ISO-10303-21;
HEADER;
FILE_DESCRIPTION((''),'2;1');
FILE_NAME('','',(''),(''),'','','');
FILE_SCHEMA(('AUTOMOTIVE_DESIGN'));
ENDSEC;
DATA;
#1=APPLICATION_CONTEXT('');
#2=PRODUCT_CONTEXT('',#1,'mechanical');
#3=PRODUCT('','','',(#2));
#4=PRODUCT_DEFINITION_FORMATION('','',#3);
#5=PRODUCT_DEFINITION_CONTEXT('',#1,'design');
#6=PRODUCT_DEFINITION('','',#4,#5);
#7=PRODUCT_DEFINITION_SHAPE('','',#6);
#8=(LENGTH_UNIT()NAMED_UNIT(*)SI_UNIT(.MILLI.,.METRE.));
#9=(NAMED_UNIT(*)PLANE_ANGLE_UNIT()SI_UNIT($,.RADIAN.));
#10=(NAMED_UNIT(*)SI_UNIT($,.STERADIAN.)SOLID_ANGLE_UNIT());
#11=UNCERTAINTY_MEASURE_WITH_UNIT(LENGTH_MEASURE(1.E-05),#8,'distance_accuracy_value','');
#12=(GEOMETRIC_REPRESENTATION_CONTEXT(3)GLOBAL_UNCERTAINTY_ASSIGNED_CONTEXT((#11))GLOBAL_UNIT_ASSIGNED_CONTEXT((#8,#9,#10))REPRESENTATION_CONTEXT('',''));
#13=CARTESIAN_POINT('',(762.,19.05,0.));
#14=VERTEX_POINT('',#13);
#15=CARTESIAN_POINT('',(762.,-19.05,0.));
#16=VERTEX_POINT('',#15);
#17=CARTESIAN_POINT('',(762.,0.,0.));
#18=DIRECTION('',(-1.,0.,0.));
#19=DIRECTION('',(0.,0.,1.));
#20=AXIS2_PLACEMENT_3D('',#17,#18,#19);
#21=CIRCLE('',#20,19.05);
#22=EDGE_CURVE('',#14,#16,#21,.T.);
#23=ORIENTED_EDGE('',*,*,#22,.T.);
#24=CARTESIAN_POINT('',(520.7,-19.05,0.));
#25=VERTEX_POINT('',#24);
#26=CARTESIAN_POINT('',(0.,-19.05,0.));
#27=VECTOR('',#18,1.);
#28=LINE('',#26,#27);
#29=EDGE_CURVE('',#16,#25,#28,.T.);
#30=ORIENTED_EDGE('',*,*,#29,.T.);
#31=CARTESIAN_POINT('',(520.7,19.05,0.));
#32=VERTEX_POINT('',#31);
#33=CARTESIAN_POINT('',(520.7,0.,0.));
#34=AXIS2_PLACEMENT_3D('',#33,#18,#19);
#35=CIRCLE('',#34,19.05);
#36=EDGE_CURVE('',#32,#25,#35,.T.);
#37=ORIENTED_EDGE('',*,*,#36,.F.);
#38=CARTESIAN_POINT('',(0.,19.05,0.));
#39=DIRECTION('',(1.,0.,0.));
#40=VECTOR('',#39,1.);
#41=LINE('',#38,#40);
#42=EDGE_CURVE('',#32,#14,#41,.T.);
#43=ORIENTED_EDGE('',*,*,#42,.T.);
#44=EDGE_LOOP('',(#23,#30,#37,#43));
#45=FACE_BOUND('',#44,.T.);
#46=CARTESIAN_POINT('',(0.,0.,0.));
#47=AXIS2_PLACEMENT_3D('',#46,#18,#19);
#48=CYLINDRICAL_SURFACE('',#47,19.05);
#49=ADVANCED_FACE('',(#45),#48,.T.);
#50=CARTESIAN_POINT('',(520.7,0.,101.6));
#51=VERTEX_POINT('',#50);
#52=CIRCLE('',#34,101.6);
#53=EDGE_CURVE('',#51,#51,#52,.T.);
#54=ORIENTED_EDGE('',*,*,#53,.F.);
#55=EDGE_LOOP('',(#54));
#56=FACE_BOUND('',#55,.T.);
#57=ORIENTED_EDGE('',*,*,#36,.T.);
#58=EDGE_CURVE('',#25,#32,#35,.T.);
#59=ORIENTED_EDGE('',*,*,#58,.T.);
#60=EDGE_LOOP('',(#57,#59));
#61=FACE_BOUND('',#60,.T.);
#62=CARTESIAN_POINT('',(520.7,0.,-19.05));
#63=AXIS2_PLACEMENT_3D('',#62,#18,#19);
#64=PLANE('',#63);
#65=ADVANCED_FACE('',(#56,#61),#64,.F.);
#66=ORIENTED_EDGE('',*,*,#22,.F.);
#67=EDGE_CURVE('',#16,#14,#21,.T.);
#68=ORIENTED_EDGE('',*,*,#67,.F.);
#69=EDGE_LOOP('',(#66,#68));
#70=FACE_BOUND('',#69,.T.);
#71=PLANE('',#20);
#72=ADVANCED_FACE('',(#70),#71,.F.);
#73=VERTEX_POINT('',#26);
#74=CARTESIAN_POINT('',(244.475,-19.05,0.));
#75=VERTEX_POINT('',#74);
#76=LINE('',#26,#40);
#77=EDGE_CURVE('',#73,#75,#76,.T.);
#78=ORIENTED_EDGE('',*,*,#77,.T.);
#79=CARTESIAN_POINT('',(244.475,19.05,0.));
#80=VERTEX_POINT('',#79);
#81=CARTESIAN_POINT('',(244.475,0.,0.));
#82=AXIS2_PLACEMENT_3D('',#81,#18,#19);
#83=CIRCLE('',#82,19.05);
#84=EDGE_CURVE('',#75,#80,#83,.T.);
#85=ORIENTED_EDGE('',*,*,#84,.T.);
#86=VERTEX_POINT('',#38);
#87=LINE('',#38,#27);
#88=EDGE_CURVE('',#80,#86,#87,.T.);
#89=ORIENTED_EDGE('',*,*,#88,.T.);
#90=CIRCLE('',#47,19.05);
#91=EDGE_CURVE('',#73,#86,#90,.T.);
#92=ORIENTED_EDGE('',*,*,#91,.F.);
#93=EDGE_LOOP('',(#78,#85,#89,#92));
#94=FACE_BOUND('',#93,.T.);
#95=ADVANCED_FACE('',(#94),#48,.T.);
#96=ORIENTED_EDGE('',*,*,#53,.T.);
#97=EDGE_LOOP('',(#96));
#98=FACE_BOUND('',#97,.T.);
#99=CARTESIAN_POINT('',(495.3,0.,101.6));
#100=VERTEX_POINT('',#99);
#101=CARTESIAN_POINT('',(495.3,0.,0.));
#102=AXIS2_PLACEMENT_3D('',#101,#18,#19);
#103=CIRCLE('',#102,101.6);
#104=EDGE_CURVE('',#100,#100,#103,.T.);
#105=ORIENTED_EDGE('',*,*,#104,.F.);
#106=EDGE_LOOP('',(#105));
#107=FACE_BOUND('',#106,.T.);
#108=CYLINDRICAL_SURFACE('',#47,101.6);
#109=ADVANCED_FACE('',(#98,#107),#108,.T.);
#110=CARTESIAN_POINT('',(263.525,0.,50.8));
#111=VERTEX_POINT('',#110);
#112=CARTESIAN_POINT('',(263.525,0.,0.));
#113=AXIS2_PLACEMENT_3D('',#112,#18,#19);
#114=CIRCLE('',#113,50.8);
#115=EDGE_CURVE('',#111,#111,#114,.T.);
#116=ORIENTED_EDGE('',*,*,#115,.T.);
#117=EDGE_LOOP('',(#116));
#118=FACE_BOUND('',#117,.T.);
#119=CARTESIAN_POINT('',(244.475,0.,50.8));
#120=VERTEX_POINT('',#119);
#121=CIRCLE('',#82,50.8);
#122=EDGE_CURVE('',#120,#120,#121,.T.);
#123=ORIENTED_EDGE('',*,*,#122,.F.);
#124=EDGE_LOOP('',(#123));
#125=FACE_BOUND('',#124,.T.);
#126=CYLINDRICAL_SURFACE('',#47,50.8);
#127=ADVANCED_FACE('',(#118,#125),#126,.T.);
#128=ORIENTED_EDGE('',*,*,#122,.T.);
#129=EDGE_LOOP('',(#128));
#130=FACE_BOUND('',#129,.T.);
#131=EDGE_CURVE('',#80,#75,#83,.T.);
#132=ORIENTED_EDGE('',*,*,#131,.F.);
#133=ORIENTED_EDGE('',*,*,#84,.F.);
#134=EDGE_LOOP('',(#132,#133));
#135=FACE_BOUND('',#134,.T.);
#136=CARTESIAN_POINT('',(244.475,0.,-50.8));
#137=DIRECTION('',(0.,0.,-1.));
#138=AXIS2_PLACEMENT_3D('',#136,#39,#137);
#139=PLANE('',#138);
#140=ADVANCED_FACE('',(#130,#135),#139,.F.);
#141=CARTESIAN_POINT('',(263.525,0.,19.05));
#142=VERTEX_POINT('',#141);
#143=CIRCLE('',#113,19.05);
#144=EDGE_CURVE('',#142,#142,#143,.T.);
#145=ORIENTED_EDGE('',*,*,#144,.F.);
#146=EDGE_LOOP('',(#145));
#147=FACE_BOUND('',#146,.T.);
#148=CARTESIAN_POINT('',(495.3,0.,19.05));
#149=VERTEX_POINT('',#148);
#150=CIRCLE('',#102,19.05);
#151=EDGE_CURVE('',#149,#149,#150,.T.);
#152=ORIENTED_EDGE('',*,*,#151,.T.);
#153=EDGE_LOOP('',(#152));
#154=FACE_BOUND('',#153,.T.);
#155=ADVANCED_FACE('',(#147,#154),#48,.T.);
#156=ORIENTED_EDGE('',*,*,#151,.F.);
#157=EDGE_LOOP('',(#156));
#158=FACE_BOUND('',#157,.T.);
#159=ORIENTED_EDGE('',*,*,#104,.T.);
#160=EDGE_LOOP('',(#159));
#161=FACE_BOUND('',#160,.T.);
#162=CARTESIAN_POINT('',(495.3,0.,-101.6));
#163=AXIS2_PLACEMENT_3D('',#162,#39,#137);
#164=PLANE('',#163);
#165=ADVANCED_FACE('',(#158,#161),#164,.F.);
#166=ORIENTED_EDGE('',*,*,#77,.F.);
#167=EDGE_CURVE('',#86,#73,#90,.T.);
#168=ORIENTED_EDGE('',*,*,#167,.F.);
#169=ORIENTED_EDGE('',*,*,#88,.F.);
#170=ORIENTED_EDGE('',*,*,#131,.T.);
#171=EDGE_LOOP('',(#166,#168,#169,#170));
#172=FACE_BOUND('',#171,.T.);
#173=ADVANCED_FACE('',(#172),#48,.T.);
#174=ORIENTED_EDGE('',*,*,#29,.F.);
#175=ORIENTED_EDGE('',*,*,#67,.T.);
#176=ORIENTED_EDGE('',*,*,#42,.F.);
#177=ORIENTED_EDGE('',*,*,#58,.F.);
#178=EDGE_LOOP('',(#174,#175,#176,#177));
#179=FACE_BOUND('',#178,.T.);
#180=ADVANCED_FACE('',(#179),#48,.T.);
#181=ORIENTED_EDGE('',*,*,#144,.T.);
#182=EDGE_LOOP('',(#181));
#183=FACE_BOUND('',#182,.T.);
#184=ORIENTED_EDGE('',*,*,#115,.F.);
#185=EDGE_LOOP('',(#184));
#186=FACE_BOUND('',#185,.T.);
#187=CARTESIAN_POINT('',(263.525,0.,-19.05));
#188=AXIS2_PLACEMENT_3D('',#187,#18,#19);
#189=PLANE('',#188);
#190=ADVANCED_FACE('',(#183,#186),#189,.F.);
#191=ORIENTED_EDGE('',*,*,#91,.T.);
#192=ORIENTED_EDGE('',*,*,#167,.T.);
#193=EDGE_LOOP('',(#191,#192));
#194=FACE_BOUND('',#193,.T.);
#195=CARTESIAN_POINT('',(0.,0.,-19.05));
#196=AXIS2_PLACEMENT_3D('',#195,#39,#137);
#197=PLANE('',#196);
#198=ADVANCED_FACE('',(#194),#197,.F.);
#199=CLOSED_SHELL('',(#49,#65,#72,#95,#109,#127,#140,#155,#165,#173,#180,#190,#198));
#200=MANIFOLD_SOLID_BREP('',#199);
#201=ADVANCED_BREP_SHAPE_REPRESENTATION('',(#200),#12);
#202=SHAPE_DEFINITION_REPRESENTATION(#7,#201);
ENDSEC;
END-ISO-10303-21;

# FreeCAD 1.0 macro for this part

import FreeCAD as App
import Part
import Sketcher

V = App.Vector
Q = App.Units.Quantity


def add_polygon(sketch, points):
    """Adds a closed chain of lines whose ends are joined by coincident constraints."""
    first, n = sketch.GeometryCount, len(points)
    for a, b in zip(points, points[1:] + points[:1]):
        sketch.addGeometry(Part.LineSegment(App.Vector(*a, 0), App.Vector(*b, 0)), False)
    for i in range(n):
        sketch.addConstraint(Sketcher.Constraint("Coincident", first + i, 2, first + (i + 1) % n, 1))

doc = App.newDocument("Part")
params = doc.addObject("Spreadsheet::Sheet", "Params")
for row, (alias, value) in enumerate([
    ("sketch1_width", "30 in"),
    ("sketch1_width2", "1 in"),
    ("sketch1_width3", "9.5 in"),
    ("sketch1_width4", "0.75 in"),
    ("sketch1_width5", "9.125 in"),
    ("revolution_angle", "360 deg"),
], start=1):
    params.set(f"A{row}", alias)
    params.set(f"B{row}", "=" + value)
    params.setAlias(f"B{row}", alias)

body = doc.addObject("PartDesign::Body", "Body")

sketch1 = body.newObject("Sketcher::SketchObject", "Sketch")
sketch1.AttachmentSupport = (doc.getObject("XZ_Plane"), [""])
sketch1.MapMode = "FlatFace"
add_polygon(sketch1, [(0, 0), (762, 0), (762, -19), (521, -19), (521, -102), (495, -102), (495, -19), (264, -19), (264, -51), (244, -51), (244, -19), (0, -19)])
sketch1.addConstraint(Sketcher.Constraint("Horizontal", 0))
sketch1.addConstraint(Sketcher.Constraint("Vertical", 1))
sketch1.addConstraint(Sketcher.Constraint("Horizontal", 2))
sketch1.addConstraint(Sketcher.Constraint("Vertical", 3))
sketch1.addConstraint(Sketcher.Constraint("Horizontal", 4))
sketch1.addConstraint(Sketcher.Constraint("Vertical", 5))
sketch1.addConstraint(Sketcher.Constraint("Horizontal", 6))
sketch1.addConstraint(Sketcher.Constraint("Vertical", 7))
sketch1.addConstraint(Sketcher.Constraint("Horizontal", 8))
sketch1.addConstraint(Sketcher.Constraint("Vertical", 9))
sketch1.addConstraint(Sketcher.Constraint("Horizontal", 10))
sketch1.addConstraint(Sketcher.Constraint("Vertical", 11))
sketch1.addConstraint(Sketcher.Constraint("Coincident", 11, 2, -1, 1))
sketch1.addConstraint(Sketcher.Constraint("Horizontal", 2, 2, 5, 2))
sketch1.addConstraint(Sketcher.Constraint("Horizontal", 6, 2, 9, 2))
sketch1.addConstraint(Sketcher.Constraint("Equal", 8, 1))
sketch1.addConstraint(Sketcher.Constraint("DistanceX", 0, 1, 0, 2, Q("30 in")))
sketch1.addConstraint(Sketcher.Constraint("DistanceX", 4, 2, 4, 1, Q("1 in")))
sketch1.addConstraint(Sketcher.Constraint("DistanceX", 2, 2, 2, 1, Q("9.5 in")))
sketch1.addConstraint(Sketcher.Constraint("DistanceY", 3, 2, -1, 1, Q("4 in")))
sketch1.addConstraint(Sketcher.Constraint("DistanceY", 7, 2, -1, 1, Q("2 in")))
sketch1.addConstraint(Sketcher.Constraint("DistanceX", 8, 2, 8, 1, Q("0.75 in")))
sketch1.addConstraint(Sketcher.Constraint("DistanceX", 6, 2, 6, 1, Q("9.125 in")))
sketch1.setExpression("Constraints[28]", "Params.sketch1_width")
sketch1.setExpression("Constraints[29]", "Params.sketch1_width2")
sketch1.setExpression("Constraints[30]", "Params.sketch1_width3")
sketch1.setExpression("Constraints[33]", "Params.sketch1_width4")
sketch1.setExpression("Constraints[34]", "Params.sketch1_width5")
revolution = body.newObject("PartDesign::Revolution", "Revolution")
revolution.Profile = sketch1
revolution.ReferenceAxis = (sketch1, ["H_Axis"])
revolution.setExpression("Angle", "Params.revolution_angle")

doc.recompute()
